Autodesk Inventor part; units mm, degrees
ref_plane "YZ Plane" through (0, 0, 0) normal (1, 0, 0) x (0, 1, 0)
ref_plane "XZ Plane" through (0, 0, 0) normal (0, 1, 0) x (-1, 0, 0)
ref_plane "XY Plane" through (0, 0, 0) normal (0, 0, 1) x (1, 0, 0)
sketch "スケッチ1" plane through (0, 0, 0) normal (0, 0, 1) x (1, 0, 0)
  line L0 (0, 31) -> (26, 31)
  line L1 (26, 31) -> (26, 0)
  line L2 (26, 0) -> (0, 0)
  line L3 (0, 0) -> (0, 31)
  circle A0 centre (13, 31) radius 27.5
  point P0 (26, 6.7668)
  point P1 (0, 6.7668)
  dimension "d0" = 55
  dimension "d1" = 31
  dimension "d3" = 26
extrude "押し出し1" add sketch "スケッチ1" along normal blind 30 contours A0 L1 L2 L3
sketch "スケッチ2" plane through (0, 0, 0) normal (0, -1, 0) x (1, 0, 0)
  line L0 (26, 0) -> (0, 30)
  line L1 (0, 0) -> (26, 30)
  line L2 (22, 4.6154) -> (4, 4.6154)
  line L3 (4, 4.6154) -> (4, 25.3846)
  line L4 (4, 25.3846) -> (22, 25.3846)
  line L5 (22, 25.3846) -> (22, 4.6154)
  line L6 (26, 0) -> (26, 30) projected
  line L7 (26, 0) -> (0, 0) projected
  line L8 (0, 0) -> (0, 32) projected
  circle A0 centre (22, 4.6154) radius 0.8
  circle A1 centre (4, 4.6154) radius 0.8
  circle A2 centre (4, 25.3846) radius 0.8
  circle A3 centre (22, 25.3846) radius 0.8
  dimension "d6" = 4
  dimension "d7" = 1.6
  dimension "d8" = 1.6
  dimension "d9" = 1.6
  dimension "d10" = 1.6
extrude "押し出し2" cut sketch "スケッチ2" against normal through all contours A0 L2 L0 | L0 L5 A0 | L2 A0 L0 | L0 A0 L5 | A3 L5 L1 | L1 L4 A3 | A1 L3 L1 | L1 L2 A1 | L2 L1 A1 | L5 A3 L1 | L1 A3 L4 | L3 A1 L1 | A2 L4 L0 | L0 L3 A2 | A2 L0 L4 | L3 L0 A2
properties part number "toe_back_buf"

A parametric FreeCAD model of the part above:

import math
import FreeCAD as App
import Part
import Sketcher

V = App.Vector

doc = App.newDocument("Part")
params = doc.addObject("Spreadsheet::Sheet", "Params")
for row, (alias, value) in enumerate([
    ("sketch1_radius", "27.5 mm"),
    ("sketch1_width", "26 mm"),
    ("pad1_length", "30 mm"),
    ("sketch2_diameter", "1.6 mm"),
], start=1):
    params.set(f"A{row}", alias)
    params.set(f"B{row}", "=" + value)
    params.setAlias(f"B{row}", alias)

body = doc.addObject("PartDesign::Body", "Body")

sketch1 = body.newObject("Sketcher::SketchObject", "Sketch")
sketch1.AttachmentSupport = (doc.getObject("XY_Plane"), [""])
sketch1.MapMode = "FlatFace"
sketch1.addGeometry([
    Part.ArcOfCircle(Part.Circle(V(13, 31, 0), V(0, 0, 1), 27.5), math.radians(-118.211476), math.radians(-61.788524)),
    Part.LineSegment(V(0, 6.766758, 0), V(0, 0, 0)),
    Part.LineSegment(V(0, 0, 0), V(26, 0, 0)),
    Part.LineSegment(V(26, 0, 0), V(26, 6.766758, 0)),
], False)
sketch1.addConstraint([
    Sketcher.Constraint("Coincident", 0, 1, 1, 1),
    Sketcher.Constraint("Coincident", 1, 2, 2, 1),
    Sketcher.Constraint("Coincident", 2, 2, 3, 1),
    Sketcher.Constraint("Coincident", 3, 2, 0, 2),
    Sketcher.Constraint("Vertical", 1),
    Sketcher.Constraint("Horizontal", 2),
    Sketcher.Constraint("Vertical", 3),
    Sketcher.Constraint("Coincident", 1, 2, -1, 1),
    Sketcher.Constraint("Horizontal", 0, 1, 3, 2),
    Sketcher.Constraint("Radius", 0, 27.5),
    Sketcher.Constraint("DistanceX", 2, 1, 2, 2, 26.0),
    Sketcher.Constraint("DistanceY", -1, 1, 0, 3, 31.0),
])
sketch1.setExpression("Constraints[9]", "Params.sketch1_radius")
sketch1.setExpression("Constraints[10]", "Params.sketch1_width")
pad1 = body.newObject("PartDesign::Pad", "Pad")
pad1.Profile = sketch1
pad1.setExpression("Length", "Params.pad1_length")

sketch2 = body.newObject("Sketcher::SketchObject", "Sketch001")
sketch2.AttachmentSupport = (doc.getObject("XZ_Plane"), [""])
sketch2.MapMode = "FlatFace"
sketch2.addGeometry([
    Part.Circle(V(22, 4.6154, 0), V(0, 0, 1), 0.8),
    Part.Circle(V(22, 25.3846, 0), V(0, 0, 1), 0.8),
    Part.Circle(V(4, 4.6154, 0), V(0, 0, 1), 0.8),
    Part.Circle(V(4, 25.3846, 0), V(0, 0, 1), 0.8),
], False)
sketch2.addConstraint([
    Sketcher.Constraint("Equal", 0, 1),
    Sketcher.Constraint("Equal", 1, 2),
    Sketcher.Constraint("Equal", 2, 3),
    Sketcher.Constraint("Horizontal", 0, 3, 2, 3),
    Sketcher.Constraint("Horizontal", 1, 3, 3, 3),
    Sketcher.Constraint("Vertical", 0, 3, 1, 3),
    Sketcher.Constraint("Vertical", 2, 3, 3, 3),
    Sketcher.Constraint("Diameter", 0, 1.6),
    Sketcher.Constraint("DistanceX", -1, 1, 2, 3, 4.0),
    Sketcher.Constraint("DistanceX", -1, 1, 0, 3, 22.0),
    Sketcher.Constraint("DistanceY", -1, 1, 0, 3, 4.6154),
    Sketcher.Constraint("DistanceY", -1, 1, 1, 3, 25.3846),
])
sketch2.setExpression("Constraints[7]", "Params.sketch2_diameter")
pocket1 = body.newObject("PartDesign::Pocket", "Pocket")
pocket1.Profile = sketch2
pocket1.Type = "ThroughAll"

doc.recompute()
